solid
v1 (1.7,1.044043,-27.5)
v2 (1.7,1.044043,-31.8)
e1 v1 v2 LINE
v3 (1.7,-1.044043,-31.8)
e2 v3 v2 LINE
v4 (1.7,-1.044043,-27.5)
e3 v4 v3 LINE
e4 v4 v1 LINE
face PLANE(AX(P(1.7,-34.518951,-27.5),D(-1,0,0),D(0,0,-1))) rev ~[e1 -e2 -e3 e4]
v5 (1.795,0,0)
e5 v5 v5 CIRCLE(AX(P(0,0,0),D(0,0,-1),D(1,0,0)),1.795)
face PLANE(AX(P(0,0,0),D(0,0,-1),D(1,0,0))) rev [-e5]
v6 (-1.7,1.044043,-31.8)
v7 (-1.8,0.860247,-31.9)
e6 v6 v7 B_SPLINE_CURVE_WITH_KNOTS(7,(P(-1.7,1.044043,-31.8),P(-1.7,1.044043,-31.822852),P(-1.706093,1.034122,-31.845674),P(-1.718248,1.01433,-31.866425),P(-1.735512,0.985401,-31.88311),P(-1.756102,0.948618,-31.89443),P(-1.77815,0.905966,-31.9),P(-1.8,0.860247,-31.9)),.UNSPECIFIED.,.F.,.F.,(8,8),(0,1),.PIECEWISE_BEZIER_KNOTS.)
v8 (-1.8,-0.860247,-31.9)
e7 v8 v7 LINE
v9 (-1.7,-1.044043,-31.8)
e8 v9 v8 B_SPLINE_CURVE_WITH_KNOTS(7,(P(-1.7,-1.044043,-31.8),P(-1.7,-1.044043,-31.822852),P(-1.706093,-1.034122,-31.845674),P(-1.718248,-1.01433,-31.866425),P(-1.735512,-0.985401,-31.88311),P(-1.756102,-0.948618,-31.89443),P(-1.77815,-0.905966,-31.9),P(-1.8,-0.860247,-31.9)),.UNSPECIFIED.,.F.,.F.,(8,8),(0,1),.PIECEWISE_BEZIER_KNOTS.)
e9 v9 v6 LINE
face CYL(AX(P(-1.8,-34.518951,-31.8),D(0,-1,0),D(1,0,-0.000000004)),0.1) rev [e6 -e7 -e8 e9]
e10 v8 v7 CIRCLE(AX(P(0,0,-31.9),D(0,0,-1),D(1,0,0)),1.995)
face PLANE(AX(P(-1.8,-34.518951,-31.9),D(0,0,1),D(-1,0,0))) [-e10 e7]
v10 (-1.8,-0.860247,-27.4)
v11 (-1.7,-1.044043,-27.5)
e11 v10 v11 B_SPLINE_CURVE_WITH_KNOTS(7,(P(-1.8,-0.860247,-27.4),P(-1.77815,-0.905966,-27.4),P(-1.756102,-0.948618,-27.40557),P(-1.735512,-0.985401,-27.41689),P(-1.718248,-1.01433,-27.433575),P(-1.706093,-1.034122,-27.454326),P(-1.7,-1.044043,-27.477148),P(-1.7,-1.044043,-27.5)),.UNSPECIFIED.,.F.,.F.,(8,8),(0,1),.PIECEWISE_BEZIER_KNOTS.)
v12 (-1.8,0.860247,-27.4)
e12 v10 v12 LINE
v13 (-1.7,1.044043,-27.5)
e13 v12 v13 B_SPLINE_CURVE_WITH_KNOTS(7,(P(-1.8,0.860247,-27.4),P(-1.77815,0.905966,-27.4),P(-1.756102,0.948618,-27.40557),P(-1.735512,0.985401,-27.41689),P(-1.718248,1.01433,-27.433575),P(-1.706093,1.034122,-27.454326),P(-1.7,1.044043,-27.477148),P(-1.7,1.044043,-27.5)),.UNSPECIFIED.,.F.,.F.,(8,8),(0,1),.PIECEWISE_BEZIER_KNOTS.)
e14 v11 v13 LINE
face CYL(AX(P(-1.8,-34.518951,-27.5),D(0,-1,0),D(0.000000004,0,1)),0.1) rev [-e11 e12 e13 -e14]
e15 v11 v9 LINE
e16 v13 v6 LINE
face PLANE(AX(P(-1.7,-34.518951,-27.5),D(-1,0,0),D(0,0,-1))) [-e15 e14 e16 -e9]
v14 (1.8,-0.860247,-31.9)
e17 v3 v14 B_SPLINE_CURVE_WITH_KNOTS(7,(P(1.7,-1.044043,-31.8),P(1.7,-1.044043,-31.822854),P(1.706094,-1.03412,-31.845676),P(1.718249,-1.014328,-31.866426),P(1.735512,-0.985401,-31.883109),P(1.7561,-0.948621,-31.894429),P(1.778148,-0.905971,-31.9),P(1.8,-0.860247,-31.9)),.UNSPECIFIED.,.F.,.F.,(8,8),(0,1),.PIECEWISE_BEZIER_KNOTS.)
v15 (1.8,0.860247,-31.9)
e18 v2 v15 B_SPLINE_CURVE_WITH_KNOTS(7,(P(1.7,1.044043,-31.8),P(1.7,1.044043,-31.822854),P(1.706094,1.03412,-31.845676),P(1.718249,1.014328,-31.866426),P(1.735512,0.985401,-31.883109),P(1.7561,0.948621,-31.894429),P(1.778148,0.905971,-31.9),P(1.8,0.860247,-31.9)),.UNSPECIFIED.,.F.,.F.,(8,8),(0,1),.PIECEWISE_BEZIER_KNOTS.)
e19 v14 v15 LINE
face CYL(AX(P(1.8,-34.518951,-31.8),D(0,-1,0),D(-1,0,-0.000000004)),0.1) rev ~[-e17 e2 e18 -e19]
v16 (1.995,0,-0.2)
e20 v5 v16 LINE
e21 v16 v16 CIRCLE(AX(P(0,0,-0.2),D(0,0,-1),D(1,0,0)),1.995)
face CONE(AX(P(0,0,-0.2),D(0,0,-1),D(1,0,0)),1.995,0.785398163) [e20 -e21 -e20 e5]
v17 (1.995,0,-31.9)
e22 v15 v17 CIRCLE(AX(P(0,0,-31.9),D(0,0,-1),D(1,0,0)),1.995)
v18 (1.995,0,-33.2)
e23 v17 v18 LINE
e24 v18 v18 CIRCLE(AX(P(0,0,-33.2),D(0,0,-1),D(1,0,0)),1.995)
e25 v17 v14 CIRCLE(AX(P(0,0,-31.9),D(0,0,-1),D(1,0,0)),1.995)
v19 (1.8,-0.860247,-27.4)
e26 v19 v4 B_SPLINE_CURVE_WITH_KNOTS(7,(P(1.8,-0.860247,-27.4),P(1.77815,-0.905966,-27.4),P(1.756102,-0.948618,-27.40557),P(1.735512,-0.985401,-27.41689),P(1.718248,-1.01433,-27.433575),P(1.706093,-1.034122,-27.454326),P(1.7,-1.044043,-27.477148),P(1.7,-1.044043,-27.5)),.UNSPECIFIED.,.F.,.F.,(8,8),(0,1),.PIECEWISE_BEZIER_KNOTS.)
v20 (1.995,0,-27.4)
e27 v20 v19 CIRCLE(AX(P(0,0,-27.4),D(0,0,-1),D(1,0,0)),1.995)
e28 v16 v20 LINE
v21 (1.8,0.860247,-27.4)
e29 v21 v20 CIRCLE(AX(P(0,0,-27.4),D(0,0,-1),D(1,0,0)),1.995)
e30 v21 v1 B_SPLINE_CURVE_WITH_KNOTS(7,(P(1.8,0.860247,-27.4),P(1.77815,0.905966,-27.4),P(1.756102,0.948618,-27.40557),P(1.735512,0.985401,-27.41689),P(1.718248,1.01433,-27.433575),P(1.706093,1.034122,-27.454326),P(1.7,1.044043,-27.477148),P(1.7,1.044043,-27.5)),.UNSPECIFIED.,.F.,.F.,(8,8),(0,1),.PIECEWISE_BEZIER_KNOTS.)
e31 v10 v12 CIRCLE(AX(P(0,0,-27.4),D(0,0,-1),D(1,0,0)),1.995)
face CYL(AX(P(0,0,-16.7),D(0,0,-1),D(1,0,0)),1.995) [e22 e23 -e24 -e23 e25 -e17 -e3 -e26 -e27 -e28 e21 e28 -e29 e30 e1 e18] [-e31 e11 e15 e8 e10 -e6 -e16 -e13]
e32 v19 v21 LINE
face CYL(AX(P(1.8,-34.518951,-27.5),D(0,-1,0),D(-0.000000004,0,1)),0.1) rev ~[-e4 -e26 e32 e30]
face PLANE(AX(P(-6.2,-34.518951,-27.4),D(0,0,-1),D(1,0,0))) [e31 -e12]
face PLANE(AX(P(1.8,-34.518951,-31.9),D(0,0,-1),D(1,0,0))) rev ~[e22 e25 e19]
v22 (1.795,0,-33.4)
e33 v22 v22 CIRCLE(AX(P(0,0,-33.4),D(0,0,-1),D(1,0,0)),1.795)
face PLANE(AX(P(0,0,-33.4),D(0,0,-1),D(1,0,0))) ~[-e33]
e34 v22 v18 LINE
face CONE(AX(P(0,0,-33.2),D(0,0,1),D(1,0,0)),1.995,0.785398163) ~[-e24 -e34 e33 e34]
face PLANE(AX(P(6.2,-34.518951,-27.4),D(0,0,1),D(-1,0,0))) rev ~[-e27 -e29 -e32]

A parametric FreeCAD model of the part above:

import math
import FreeCAD as App
import Part
import Sketcher
Q = App.Units.Quantity


def edges_at(feature, points):
    """Names of the edges that pass closest to the given points."""
    edges = feature.Shape.Edges
    near = lambda p: min(range(len(edges)), key=lambda i: edges[i].distToShape(Part.Vertex(*p))[0])
    return sorted({f"Edge{near(p) + 1}" for p in points})


def add_polygon(sketch, points):
    """Adds a closed chain of lines whose ends are joined by coincident constraints."""
    first, n = sketch.GeometryCount, len(points)
    for a, b in zip(points, points[1:] + points[:1]):
        sketch.addGeometry(Part.LineSegment(App.Vector(*a, 0), App.Vector(*b, 0)), False)
    for i in range(n):
        sketch.addConstraint(Sketcher.Constraint("Coincident", first + i, 2, first + (i + 1) % n, 1))

doc = App.newDocument("Part")
params = doc.addObject("Spreadsheet::Sheet", "Params")
for row, (alias, value) in enumerate([
    ("sketch1_height", "33.4 mm"),
    ("revolution_angle", "360 deg"),
    ("chamfer_size", "0.2 mm"),
    ("sketch2_radius", "0.1 mm"),
    ("sketch2_width", "4.4 mm"),
    ("sketch2_height", "4.3 mm"),
], start=1):
    params.set(f"A{row}", alias)
    params.set(f"B{row}", "=" + value)
    params.setAlias(f"B{row}", alias)

body = doc.addObject("PartDesign::Body", "Body")

# Sketch on YZ plane
sketch1 = doc.addObject("Sketcher::SketchObject", "Sketch")
body.addObject(sketch1)
sketch1.AttachmentSupport = (doc.YZ_Plane, [""])
sketch1.MapMode = "FlatFace"
add_polygon(sketch1, [(1.995, 0), (0, 0), (0, -33.4), (1.995, -33.4)])  # lines 0-3
sketch1.addConstraint(Sketcher.Constraint("Horizontal", 0))
sketch1.addConstraint(Sketcher.Constraint("Vertical", 1))
sketch1.addConstraint(Sketcher.Constraint("Horizontal", 2))
sketch1.addConstraint(Sketcher.Constraint("Vertical", 3))
sketch1.addConstraint(Sketcher.Constraint("Coincident", 0, 2, -1, 1))
sketch1.addConstraint(Sketcher.Constraint("DistanceY", 1, 2, 1, 1, Q("33.4 mm")))
sketch1.addConstraint(Sketcher.Constraint("DistanceX", 0, 2, 0, 1, Q("1.995 mm")))
sketch1.setExpression("Constraints[9]", "Params.sketch1_height")
revolution = doc.addObject("PartDesign::Revolution", "Revolution")
body.addObject(revolution)
revolution.Profile = sketch1
revolution.ReferenceAxis = (sketch1, ["V_Axis"])
revolution.setExpression("Angle", "Params.revolution_angle")
doc.recompute()

chamfer = doc.addObject("PartDesign::Chamfer", "Chamfer")
body.addObject(chamfer)
chamfer.Base = (revolution, edges_at(revolution, [(-1.995, 0, -33.4), (-1.995, 0, 0)]))
chamfer.setExpression("Size", "Params.chamfer_size")

# Sketch on XZ plane
sketch2 = doc.addObject("Sketcher::SketchObject", "Sketch001")
body.addObject(sketch2)
sketch2.AttachmentSupport = (doc.XZ_Plane, [""])
sketch2.MapMode = "FlatFace"
sketch2.addGeometry(Part.LineSegment(App.Vector(-6.2, -27.4, 0), App.Vector(-1.8, -27.4, 0)), False)
sketch2.addGeometry(Part.ArcOfCircle(Part.Circle(App.Vector(-1.8, -27.5, 0), App.Vector(0, 0, 1), 0.1), math.radians(0), math.radians(90)), False)
sketch2.addGeometry(Part.LineSegment(App.Vector(-1.7, -27.5, 0), App.Vector(-1.7, -31.8, 0)), False)
sketch2.addGeometry(Part.ArcOfCircle(Part.Circle(App.Vector(-1.8, -31.8, 0), App.Vector(0, 0, 1), 0.1), math.radians(-90), math.radians(0)), False)
sketch2.addGeometry(Part.LineSegment(App.Vector(-1.8, -31.9, 0), App.Vector(-6.2, -31.9, 0)), False)
sketch2.addGeometry(Part.LineSegment(App.Vector(-6.2, -31.9, 0), App.Vector(-6.2, -27.4, 0)), False)
sketch2.addGeometry(Part.LineSegment(App.Vector(1.7, -31.8, 0), App.Vector(1.7, -27.5, 0)), False)
sketch2.addGeometry(Part.ArcOfCircle(Part.Circle(App.Vector(1.8, -27.5, 0), App.Vector(0, 0, 1), 0.1), math.radians(90), math.radians(180)), False)
sketch2.addGeometry(Part.LineSegment(App.Vector(1.8, -27.4, 0), App.Vector(6.2, -27.4, 0)), False)
sketch2.addGeometry(Part.LineSegment(App.Vector(6.2, -27.4, 0), App.Vector(6.2, -31.9, 0)), False)
sketch2.addGeometry(Part.LineSegment(App.Vector(6.2, -31.9, 0), App.Vector(1.8, -31.9, 0)), False)
sketch2.addGeometry(Part.ArcOfCircle(Part.Circle(App.Vector(1.8, -31.8, 0), App.Vector(0, 0, 1), 0.1), math.radians(180), math.radians(270)), False)
sketch2.addConstraint(Sketcher.Constraint("Tangent", 0, 2, 1, 2))
sketch2.addConstraint(Sketcher.Constraint("Tangent", 1, 1, 2, 1))
sketch2.addConstraint(Sketcher.Constraint("Tangent", 2, 2, 3, 2))
sketch2.addConstraint(Sketcher.Constraint("Tangent", 3, 1, 4, 1))
sketch2.addConstraint(Sketcher.Constraint("Coincident", 4, 2, 5, 1))
sketch2.addConstraint(Sketcher.Constraint("Coincident", 5, 2, 0, 1))
sketch2.addConstraint(Sketcher.Constraint("Tangent", 6, 2, 7, 2))
sketch2.addConstraint(Sketcher.Constraint("Tangent", 7, 1, 8, 1))
sketch2.addConstraint(Sketcher.Constraint("Coincident", 8, 2, 9, 1))
sketch2.addConstraint(Sketcher.Constraint("Coincident", 9, 2, 10, 1))
sketch2.addConstraint(Sketcher.Constraint("Tangent", 10, 2, 11, 2))
sketch2.addConstraint(Sketcher.Constraint("Tangent", 11, 1, 6, 1))
sketch2.addConstraint(Sketcher.Constraint("Horizontal", 0))
sketch2.addConstraint(Sketcher.Constraint("Vertical", 2))
sketch2.addConstraint(Sketcher.Constraint("Horizontal", 4))
sketch2.addConstraint(Sketcher.Constraint("Vertical", 5))
sketch2.addConstraint(Sketcher.Constraint("Vertical", 6))
sketch2.addConstraint(Sketcher.Constraint("Horizontal", 8))
sketch2.addConstraint(Sketcher.Constraint("Vertical", 9))
sketch2.addConstraint(Sketcher.Constraint("Horizontal", 10))
sketch2.addConstraint(Sketcher.Constraint("Equal", 1, 3))
sketch2.addConstraint(Sketcher.Constraint("Equal", 3, 7))
sketch2.addConstraint(Sketcher.Constraint("Equal", 7, 11))
sketch2.addConstraint(Sketcher.Constraint("Symmetric", 1, 3, 7, 3, -2))
sketch2.addConstraint(Sketcher.Constraint("Symmetric", 4, 2, 9, 2, -2))
sketch2.addConstraint(Sketcher.Constraint("Radius", 1, Q("0.1 mm")))
sketch2.addConstraint(Sketcher.Constraint("DistanceX", 0, 1, 0, 2, Q("4.4 mm")))
sketch2.addConstraint(Sketcher.Constraint("DistanceY", 2, 2, 2, 1, Q("4.3 mm")))
sketch2.addConstraint(Sketcher.Constraint("DistanceX", 1, 3, -1, 1, Q("1.8 mm")))
sketch2.addConstraint(Sketcher.Constraint("DistanceY", 1, 3, -1, 1, Q("27.5 mm")))
sketch2.setExpression("Constraints[25]", "Params.sketch2_radius")
sketch2.setExpression("Constraints[26]", "Params.sketch2_width")
sketch2.setExpression("Constraints[27]", "Params.sketch2_height")
pocket1 = doc.addObject("PartDesign::Pocket", "Pocket")
body.addObject(pocket1)
pocket1.Profile = sketch2
pocket1.Type = "ThroughAll"
pocket1.Midplane = True

doc.recompute()
